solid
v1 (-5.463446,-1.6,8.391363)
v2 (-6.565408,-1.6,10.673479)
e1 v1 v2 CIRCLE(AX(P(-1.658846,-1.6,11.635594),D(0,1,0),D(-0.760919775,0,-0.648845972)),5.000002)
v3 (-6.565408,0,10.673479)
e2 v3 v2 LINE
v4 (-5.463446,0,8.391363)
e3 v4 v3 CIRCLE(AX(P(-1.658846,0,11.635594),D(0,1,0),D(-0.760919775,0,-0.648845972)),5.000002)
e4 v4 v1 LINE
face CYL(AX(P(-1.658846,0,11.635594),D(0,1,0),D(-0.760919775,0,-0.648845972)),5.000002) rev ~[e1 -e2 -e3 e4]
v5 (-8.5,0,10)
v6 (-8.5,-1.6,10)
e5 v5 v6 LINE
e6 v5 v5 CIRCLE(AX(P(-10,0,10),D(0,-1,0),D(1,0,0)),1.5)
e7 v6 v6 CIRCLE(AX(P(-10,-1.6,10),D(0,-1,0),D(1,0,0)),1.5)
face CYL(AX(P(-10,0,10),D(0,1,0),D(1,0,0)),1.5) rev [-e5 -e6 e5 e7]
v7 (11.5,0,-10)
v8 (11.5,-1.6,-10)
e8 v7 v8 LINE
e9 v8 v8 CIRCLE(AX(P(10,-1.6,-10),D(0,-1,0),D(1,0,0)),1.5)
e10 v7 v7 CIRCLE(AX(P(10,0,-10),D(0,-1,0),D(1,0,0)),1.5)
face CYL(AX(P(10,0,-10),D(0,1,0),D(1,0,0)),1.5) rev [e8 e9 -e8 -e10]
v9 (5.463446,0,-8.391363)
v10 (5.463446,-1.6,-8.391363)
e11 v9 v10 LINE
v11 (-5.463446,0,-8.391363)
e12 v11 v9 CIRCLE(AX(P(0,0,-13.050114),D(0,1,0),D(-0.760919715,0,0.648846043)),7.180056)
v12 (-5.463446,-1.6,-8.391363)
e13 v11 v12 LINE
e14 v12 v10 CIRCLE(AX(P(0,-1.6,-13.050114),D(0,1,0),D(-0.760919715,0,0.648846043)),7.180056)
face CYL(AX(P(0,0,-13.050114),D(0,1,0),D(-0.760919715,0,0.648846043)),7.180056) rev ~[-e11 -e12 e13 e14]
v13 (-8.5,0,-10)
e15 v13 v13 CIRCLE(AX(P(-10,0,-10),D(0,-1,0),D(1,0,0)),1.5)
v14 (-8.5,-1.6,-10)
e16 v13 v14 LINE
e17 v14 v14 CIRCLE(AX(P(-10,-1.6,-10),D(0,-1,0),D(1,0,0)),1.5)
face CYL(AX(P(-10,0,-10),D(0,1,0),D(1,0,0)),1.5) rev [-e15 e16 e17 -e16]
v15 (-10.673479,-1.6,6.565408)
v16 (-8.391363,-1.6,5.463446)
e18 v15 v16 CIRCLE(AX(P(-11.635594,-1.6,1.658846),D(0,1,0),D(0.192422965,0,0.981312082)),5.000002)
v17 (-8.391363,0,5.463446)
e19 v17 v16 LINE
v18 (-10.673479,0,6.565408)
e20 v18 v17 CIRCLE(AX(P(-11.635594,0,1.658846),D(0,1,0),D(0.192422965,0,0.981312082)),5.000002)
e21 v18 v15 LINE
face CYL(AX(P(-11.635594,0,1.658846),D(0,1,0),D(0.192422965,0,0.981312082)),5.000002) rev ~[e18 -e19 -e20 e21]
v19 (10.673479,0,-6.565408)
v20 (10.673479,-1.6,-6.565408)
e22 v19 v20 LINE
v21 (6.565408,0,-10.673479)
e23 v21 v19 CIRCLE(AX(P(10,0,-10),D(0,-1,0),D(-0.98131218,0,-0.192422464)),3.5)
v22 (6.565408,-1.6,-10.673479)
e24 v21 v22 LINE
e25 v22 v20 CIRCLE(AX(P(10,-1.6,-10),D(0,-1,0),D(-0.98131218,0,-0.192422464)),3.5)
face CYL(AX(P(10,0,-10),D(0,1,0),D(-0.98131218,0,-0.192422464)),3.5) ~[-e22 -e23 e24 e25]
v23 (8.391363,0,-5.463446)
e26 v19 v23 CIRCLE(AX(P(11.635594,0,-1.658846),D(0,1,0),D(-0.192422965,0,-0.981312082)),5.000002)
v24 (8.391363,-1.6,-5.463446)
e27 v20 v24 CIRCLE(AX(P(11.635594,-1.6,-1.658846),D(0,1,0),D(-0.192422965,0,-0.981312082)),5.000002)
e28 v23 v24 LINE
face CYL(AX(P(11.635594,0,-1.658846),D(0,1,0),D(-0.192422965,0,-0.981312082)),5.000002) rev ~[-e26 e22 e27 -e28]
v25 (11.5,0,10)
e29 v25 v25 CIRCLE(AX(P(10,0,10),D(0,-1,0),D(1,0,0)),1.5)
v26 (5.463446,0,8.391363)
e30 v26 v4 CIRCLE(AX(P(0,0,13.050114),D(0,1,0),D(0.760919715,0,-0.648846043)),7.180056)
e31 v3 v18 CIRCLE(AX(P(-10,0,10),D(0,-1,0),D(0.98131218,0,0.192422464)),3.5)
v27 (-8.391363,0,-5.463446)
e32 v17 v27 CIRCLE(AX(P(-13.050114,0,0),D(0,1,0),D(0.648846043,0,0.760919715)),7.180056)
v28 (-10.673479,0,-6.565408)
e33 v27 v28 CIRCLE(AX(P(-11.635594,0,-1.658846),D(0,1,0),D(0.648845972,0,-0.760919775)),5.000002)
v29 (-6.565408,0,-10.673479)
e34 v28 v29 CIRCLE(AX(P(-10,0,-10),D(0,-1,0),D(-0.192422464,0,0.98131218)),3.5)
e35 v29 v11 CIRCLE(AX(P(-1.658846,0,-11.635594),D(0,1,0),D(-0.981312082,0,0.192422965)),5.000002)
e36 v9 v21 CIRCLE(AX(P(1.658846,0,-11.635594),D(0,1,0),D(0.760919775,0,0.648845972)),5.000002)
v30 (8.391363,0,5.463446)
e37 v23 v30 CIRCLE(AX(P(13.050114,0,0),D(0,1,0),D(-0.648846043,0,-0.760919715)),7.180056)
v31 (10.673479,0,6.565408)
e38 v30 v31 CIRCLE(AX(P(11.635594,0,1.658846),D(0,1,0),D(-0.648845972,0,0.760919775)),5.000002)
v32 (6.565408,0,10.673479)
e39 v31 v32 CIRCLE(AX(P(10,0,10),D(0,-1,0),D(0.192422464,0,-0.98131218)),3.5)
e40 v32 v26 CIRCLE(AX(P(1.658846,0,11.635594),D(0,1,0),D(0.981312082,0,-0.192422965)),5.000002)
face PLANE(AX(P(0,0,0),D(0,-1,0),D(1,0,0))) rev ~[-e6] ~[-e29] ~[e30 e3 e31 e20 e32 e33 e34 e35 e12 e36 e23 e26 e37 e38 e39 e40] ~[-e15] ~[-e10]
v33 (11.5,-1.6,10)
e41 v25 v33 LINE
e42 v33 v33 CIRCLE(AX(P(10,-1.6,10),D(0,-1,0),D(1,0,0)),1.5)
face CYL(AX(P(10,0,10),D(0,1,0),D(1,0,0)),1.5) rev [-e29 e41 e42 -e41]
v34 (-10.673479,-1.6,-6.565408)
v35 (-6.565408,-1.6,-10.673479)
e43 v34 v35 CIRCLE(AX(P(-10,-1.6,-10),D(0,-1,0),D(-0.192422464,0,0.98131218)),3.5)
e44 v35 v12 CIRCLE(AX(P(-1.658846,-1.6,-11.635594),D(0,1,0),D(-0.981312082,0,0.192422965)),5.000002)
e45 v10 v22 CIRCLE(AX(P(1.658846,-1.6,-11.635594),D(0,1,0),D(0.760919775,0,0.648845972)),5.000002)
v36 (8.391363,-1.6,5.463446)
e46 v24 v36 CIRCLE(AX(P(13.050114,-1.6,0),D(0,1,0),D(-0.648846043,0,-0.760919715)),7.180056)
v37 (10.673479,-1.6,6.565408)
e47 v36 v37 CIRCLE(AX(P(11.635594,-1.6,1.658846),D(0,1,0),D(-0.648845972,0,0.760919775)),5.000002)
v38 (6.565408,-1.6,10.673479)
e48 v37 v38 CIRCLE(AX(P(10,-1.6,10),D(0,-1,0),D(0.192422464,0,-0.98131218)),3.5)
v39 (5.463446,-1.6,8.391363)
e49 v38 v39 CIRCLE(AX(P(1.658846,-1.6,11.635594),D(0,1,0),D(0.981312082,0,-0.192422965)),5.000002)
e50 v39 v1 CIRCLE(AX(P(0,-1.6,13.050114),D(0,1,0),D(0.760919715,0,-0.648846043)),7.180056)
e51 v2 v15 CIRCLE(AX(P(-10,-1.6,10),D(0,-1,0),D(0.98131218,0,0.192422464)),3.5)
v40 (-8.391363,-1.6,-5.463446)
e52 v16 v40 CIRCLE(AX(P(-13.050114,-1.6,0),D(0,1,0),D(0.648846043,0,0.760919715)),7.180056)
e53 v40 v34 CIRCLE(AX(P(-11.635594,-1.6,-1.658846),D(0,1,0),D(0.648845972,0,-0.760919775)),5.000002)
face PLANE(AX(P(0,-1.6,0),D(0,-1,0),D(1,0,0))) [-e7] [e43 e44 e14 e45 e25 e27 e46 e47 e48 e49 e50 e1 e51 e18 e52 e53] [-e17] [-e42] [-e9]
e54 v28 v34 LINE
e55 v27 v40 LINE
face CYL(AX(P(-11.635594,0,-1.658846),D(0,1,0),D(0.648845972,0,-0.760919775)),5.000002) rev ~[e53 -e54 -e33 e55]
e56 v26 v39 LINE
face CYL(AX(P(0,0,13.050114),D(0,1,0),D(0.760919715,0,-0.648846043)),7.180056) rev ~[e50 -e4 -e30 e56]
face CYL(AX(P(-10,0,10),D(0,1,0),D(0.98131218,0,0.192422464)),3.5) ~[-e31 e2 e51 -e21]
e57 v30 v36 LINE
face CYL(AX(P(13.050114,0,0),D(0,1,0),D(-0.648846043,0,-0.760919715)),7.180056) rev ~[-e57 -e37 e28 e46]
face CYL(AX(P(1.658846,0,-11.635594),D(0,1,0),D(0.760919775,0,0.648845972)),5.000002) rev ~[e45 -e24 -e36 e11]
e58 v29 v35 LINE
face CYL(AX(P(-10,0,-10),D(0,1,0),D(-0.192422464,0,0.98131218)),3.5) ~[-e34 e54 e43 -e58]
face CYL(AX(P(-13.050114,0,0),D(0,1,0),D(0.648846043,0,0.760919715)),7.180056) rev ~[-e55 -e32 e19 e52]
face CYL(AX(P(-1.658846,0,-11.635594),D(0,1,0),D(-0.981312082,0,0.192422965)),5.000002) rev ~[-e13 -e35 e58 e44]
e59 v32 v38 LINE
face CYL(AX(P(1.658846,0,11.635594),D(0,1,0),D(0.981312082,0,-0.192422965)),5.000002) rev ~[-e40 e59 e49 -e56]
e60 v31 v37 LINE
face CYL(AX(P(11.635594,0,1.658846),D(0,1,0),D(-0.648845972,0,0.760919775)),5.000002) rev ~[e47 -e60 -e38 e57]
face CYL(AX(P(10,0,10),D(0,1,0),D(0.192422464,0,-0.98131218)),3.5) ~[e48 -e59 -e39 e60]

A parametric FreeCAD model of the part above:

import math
import FreeCAD as App
import Part
import Sketcher

doc = App.newDocument("Part")
body = doc.addObject("PartDesign::Body", "Body")

# Sketch on XZ plane
sketch1 = body.newObject("Sketcher::SketchObject", "Sketch")
sketch1.AttachmentSupport = (doc.getObject("XZ_Plane"), [""])
sketch1.MapMode = "FlatFace"
sketch1.addGeometry([
    Part.ArcOfCircle(Part.Circle(App.Vector(-11.6, -1.7, 0), App.Vector(0, 0, 1), 5), math.radians(-79), math.radians(-50)),  # 0
    Part.ArcOfCircle(Part.Circle(App.Vector(-10, -10, 0), App.Vector(0, 0, 1), 3.5), math.radians(101), math.radians(349)),  # 1
    Part.ArcOfCircle(Part.Circle(App.Vector(-1.7, -11.6, 0), App.Vector(0, 0, 1), 5), math.radians(140), math.radians(169)),  # 2
    Part.ArcOfCircle(Part.Circle(App.Vector(0, -13.1, 0), App.Vector(0, 0, 1), 7.2), math.radians(40), math.radians(140)),  # 3
    Part.ArcOfCircle(Part.Circle(App.Vector(1.7, -11.6, 0), App.Vector(0, 0, 1), 5), math.radians(11), math.radians(40)),  # 4
    Part.ArcOfCircle(Part.Circle(App.Vector(10, -10, 0), App.Vector(0, 0, 1), 3.5), math.radians(-169), math.radians(79)),  # 5
    Part.ArcOfCircle(Part.Circle(App.Vector(11.6, -1.7, 0), App.Vector(0, 0, 1), 5), math.radians(-130), math.radians(-101)),  # 6
    Part.ArcOfCircle(Part.Circle(App.Vector(13.1, 0, 0), App.Vector(0, 0, 1), 7.2), math.radians(130), math.radians(230)),  # 7
    Part.ArcOfCircle(Part.Circle(App.Vector(11.6, 1.7, 0), App.Vector(0, 0, 1), 5), math.radians(101), math.radians(130)),  # 8
    Part.ArcOfCircle(Part.Circle(App.Vector(10, 10, 0), App.Vector(0, 0, 1), 3.5), math.radians(-79), math.radians(169)),  # 9
    Part.ArcOfCircle(Part.Circle(App.Vector(1.7, 11.6, 0), App.Vector(0, 0, 1), 5), math.radians(-40), math.radians(-11)),  # 10
    Part.ArcOfCircle(Part.Circle(App.Vector(0, 13.1, 0), App.Vector(0, 0, 1), 7.2), math.radians(-140), math.radians(-40)),  # 11
    Part.ArcOfCircle(Part.Circle(App.Vector(-1.7, 11.6, 0), App.Vector(0, 0, 1), 5), math.radians(-169), math.radians(-140)),  # 12
    Part.ArcOfCircle(Part.Circle(App.Vector(-10, 10, 0), App.Vector(0, 0, 1), 3.5), math.radians(11), math.radians(259)),  # 13
    Part.ArcOfCircle(Part.Circle(App.Vector(-11.6, 1.7, 0), App.Vector(0, 0, 1), 5), math.radians(50), math.radians(79)),  # 14
    Part.ArcOfCircle(Part.Circle(App.Vector(-13.1, 0, 0), App.Vector(0, 0, 1), 7.2), math.radians(-50), math.radians(50)),  # 15
    Part.Circle(App.Vector(-10, -10, 0), App.Vector(0, 0, 1), 1.5),  # 16
    Part.Circle(App.Vector(10, -10, 0), App.Vector(0, 0, 1), 1.5),  # 17
    Part.Circle(App.Vector(-10, 10, 0), App.Vector(0, 0, 1), 1.5),  # 18
    Part.Circle(App.Vector(10, 10, 0), App.Vector(0, 0, 1), 1.5),  # 19
], False)
sketch1.addConstraint([
    Sketcher.Constraint("Tangent", 0, 1, 1, 1),
    Sketcher.Constraint("Tangent", 1, 2, 2, 2),
    Sketcher.Constraint("Tangent", 2, 1, 3, 2),
    Sketcher.Constraint("Tangent", 3, 1, 4, 2),
    Sketcher.Constraint("Tangent", 4, 1, 5, 1),
    Sketcher.Constraint("Tangent", 5, 2, 6, 2),
    Sketcher.Constraint("Tangent", 6, 1, 7, 2),
    Sketcher.Constraint("Tangent", 7, 1, 8, 2),
    Sketcher.Constraint("Tangent", 8, 1, 9, 1),
    Sketcher.Constraint("Tangent", 9, 2, 10, 2),
    Sketcher.Constraint("Tangent", 10, 1, 11, 2),
    Sketcher.Constraint("Tangent", 11, 1, 12, 2),
    Sketcher.Constraint("Tangent", 12, 1, 13, 1),
    Sketcher.Constraint("Tangent", 13, 2, 14, 2),
    Sketcher.Constraint("Tangent", 14, 1, 15, 2),
    Sketcher.Constraint("Tangent", 15, 1, 0, 2),
    Sketcher.Constraint("Coincident", 16, 3, 1, 3),
    Sketcher.Constraint("Coincident", 17, 3, 5, 3),
    Sketcher.Constraint("Coincident", 18, 3, 13, 3),
    Sketcher.Constraint("Coincident", 19, 3, 9, 3),
    Sketcher.Constraint("Equal", 0, 2),
    Sketcher.Constraint("Equal", 2, 4),
    Sketcher.Constraint("Equal", 1, 5),
    Sketcher.Constraint("Equal", 4, 6),
    Sketcher.Constraint("Equal", 3, 7),
    Sketcher.Constraint("Equal", 6, 8),
    Sketcher.Constraint("Equal", 5, 9),
    Sketcher.Constraint("Equal", 8, 10),
    Sketcher.Constraint("Equal", 7, 11),
    Sketcher.Constraint("Equal", 10, 12),
    Sketcher.Constraint("Equal", 9, 13),
    Sketcher.Constraint("Equal", 12, 14),
    Sketcher.Constraint("Equal", 11, 15),
    Sketcher.Constraint("Equal", 16, 17),
    Sketcher.Constraint("Equal", 17, 18),
    Sketcher.Constraint("Equal", 18, 19),
    Sketcher.Constraint("Symmetric", 0, 3, 8, 3, -1, 1),
    Sketcher.Constraint("Symmetric", 2, 3, 10, 3, -1, 1),
    Sketcher.Constraint("Symmetric", 4, 3, 12, 3, -1, 1),
    Sketcher.Constraint("Symmetric", 6, 3, 14, 3, -1, 1),
    Sketcher.Constraint("Symmetric", 2, 3, 4, 3, -2),
    Sketcher.Constraint("Symmetric", 0, 3, 6, 3, -2),
    Sketcher.Constraint("Diameter", 16, 3.0),
    Sketcher.Constraint("Radius", 1, 3.5),
    Sketcher.Constraint("DistanceX", 1, 3, -1, 1, 10.0),
    Sketcher.Constraint("DistanceY", 1, 3, -1, 1, 10.0),
    Sketcher.Constraint("Radius", 0, 5.000002),
    Sketcher.Constraint("Radius", 3, 7.180056),
    Sketcher.Constraint("DistanceX", 2, 1, 2, 3, 3.8046),
    Sketcher.Constraint("DistanceY", 6, 1, 6, 3, 3.8046),
])
pad1 = body.newObject("PartDesign::Pad", "Pad")
pad1.Profile = sketch1
pad1.Length = 1.6

doc.recompute()
